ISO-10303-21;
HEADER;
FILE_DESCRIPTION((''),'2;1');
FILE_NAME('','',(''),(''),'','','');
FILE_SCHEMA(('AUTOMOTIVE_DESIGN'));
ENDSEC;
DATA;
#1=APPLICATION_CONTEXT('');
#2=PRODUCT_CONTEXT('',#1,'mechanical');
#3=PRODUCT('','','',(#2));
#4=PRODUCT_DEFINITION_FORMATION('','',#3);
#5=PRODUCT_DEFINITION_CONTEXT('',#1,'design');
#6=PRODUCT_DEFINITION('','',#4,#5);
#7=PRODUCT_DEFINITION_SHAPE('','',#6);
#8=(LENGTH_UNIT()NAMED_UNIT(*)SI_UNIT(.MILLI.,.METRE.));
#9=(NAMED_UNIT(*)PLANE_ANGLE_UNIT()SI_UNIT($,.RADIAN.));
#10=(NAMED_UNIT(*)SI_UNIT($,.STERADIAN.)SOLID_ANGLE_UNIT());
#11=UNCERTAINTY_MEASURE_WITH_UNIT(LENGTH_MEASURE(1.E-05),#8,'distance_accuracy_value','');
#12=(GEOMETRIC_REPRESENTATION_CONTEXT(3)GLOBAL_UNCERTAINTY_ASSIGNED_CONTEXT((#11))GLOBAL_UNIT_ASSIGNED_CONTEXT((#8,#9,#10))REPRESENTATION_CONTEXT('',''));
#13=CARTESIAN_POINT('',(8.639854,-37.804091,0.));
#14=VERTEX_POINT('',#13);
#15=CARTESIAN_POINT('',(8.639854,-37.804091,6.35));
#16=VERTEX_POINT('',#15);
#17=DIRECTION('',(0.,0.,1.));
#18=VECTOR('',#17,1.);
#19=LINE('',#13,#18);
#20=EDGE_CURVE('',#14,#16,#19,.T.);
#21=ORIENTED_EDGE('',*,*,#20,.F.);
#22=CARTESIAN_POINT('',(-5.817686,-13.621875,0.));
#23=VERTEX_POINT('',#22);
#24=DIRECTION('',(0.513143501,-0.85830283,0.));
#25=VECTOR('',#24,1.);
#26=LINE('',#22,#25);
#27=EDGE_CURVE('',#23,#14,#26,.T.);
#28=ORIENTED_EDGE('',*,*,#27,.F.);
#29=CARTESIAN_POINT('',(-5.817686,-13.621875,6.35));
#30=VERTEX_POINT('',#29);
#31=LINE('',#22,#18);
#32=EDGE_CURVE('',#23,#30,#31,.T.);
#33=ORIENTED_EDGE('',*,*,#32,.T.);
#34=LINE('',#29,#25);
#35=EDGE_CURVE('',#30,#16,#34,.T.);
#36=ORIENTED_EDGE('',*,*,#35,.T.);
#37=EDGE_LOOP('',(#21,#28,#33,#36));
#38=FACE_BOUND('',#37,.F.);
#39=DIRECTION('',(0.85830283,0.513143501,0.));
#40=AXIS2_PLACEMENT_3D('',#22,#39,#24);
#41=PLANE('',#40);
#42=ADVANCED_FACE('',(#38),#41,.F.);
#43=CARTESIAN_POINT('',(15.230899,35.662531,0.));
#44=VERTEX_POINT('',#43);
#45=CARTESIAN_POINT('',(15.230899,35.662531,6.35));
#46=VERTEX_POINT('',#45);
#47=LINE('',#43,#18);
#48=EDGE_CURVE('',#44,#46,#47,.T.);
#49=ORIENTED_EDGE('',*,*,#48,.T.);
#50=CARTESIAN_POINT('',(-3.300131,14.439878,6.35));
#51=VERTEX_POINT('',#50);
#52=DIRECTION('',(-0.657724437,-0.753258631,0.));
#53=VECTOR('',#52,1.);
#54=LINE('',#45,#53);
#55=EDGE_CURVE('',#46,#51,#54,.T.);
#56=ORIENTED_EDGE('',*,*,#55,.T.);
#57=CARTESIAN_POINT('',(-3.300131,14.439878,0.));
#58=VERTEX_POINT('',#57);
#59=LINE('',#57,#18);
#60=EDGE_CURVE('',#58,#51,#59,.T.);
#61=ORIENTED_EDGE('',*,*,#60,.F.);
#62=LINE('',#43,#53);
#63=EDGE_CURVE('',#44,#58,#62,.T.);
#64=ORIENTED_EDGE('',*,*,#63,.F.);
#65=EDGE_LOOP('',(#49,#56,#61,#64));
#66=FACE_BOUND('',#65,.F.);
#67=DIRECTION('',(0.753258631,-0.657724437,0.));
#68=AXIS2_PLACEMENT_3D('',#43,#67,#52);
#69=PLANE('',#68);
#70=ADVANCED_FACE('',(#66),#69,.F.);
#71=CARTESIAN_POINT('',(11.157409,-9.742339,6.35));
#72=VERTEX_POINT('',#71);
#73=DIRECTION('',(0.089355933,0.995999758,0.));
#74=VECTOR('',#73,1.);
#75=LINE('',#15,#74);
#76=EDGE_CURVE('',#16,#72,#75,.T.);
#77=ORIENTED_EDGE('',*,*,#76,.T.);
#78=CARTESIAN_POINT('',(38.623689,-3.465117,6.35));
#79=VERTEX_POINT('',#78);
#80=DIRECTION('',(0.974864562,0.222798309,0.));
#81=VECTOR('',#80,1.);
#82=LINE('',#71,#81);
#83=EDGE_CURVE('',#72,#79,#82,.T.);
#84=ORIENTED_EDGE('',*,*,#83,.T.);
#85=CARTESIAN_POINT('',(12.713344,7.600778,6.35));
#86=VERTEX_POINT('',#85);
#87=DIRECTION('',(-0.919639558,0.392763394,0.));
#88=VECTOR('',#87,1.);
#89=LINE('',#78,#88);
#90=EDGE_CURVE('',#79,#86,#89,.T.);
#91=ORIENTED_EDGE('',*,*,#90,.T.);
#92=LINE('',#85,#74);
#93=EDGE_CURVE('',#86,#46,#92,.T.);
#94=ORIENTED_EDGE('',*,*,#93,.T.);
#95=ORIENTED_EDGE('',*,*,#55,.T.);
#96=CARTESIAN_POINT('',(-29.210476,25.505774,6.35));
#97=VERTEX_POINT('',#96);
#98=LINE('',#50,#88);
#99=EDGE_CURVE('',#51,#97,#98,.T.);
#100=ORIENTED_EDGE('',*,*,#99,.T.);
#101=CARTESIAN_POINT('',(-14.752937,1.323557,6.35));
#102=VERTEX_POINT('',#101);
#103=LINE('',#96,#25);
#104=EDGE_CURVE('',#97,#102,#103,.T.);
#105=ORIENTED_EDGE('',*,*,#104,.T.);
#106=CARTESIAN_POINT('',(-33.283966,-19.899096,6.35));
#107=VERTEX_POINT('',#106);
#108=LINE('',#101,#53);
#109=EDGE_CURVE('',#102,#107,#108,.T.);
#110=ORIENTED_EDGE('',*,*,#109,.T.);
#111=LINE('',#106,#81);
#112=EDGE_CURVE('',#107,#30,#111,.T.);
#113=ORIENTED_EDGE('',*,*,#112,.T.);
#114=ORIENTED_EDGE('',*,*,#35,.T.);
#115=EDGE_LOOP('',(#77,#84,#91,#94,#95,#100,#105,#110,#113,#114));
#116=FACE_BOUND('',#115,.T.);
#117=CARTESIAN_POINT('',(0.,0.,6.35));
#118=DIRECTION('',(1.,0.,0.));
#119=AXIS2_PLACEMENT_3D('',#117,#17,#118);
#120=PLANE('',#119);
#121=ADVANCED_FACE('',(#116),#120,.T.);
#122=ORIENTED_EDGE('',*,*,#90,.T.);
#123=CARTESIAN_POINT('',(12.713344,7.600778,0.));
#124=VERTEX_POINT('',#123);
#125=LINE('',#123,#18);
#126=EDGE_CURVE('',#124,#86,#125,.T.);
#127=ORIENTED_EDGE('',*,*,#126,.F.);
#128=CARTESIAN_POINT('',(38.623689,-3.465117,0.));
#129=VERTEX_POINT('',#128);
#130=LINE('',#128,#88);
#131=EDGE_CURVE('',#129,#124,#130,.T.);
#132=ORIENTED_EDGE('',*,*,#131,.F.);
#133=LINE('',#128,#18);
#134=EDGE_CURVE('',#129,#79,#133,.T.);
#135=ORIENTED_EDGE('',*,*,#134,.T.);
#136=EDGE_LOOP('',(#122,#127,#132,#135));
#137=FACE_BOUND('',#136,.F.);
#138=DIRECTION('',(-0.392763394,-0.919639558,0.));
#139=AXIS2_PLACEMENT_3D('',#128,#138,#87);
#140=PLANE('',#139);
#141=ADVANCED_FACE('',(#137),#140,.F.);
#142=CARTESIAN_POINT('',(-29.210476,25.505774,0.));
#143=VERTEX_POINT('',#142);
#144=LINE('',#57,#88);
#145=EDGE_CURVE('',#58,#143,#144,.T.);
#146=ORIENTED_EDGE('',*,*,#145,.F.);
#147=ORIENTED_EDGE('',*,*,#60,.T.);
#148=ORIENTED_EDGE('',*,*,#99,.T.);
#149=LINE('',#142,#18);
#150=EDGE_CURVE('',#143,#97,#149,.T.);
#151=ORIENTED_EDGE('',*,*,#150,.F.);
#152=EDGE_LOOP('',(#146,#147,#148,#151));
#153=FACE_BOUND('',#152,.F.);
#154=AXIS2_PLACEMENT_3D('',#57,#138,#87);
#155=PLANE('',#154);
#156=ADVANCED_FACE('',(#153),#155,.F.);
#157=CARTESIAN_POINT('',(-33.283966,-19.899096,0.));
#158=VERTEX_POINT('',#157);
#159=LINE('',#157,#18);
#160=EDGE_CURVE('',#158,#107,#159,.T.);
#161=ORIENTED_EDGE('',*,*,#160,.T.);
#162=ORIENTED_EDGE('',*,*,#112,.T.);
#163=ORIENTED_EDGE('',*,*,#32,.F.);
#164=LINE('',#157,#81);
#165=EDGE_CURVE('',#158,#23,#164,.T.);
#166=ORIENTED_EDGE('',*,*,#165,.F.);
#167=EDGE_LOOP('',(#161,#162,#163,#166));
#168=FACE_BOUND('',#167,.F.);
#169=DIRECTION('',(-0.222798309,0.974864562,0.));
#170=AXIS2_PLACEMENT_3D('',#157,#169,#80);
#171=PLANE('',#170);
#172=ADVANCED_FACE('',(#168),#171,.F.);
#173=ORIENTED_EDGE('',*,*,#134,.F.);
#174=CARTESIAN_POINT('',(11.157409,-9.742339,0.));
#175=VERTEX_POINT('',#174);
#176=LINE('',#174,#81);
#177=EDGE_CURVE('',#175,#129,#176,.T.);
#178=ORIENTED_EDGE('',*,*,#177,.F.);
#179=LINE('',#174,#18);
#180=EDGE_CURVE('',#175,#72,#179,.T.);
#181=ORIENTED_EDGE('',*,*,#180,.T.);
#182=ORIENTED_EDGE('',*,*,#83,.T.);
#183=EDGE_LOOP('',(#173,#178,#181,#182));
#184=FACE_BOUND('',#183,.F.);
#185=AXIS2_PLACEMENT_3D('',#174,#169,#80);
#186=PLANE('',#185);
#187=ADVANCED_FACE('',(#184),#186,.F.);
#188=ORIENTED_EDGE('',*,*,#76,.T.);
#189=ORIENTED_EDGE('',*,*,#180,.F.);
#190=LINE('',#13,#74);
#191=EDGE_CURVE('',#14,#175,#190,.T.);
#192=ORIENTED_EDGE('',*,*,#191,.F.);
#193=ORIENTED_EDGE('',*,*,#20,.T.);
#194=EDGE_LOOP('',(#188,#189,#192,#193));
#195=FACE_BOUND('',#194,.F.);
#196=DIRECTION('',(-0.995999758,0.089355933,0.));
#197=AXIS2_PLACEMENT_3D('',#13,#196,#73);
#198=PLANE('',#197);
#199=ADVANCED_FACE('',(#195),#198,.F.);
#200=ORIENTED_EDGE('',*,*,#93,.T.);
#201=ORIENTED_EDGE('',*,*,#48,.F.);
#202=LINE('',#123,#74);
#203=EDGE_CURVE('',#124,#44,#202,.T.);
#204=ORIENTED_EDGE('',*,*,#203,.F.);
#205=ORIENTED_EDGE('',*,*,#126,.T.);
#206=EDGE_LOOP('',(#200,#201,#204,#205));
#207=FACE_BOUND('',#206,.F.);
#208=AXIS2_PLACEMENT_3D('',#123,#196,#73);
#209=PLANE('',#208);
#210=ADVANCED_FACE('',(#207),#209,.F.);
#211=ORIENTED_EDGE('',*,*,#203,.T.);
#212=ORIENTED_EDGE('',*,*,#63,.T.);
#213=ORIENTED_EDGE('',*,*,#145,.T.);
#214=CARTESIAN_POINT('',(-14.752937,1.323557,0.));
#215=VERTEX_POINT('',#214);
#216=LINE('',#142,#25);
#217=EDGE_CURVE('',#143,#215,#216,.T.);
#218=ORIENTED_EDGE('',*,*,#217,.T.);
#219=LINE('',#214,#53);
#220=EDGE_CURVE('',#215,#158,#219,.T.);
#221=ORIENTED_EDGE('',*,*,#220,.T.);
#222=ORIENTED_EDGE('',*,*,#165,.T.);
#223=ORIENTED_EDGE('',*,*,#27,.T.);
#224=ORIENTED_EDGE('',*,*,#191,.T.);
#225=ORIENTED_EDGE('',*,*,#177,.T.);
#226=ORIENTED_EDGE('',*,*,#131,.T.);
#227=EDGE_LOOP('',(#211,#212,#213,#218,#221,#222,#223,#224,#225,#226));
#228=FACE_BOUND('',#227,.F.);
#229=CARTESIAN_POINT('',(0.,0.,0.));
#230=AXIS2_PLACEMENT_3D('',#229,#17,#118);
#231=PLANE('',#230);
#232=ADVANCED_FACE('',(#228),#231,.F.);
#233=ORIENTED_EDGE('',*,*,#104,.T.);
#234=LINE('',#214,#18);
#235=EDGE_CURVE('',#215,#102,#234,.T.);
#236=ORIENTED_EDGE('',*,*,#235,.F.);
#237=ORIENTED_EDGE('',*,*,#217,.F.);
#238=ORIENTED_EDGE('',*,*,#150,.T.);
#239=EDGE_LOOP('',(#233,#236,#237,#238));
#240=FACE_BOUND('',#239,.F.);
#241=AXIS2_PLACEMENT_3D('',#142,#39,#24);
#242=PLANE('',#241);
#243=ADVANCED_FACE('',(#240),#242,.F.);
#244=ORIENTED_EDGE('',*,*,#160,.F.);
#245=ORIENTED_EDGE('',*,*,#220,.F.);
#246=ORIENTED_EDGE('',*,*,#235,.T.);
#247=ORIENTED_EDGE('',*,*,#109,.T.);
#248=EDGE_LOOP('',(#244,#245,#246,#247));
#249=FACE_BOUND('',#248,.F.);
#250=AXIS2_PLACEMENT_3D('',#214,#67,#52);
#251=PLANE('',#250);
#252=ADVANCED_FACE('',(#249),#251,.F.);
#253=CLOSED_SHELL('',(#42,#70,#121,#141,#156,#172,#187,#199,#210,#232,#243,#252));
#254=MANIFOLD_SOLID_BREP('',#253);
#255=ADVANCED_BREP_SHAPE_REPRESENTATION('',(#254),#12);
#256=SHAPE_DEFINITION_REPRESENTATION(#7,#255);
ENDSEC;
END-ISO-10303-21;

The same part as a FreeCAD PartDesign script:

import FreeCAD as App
import Part
import Sketcher
from FreeCAD import Vector
Q = App.Units.Quantity

doc = App.newDocument("Part")
params = doc.addObject("Spreadsheet::Sheet", "Params")
for row, (alias, value) in enumerate([
    ("pad1_length", "0.25 in"),
], start=1):
    params.set(f"A{row}", alias)
    params.set(f"B{row}", "=" + value)
    params.setAlias(f"B{row}", alias)

body = doc.addObject("PartDesign::Body", "Body")

# Sketch on XY plane
sketch1 = doc.addObject("Sketcher::SketchObject", "Sketch")
body.addObject(sketch1)
sketch1.AttachmentSupport = (doc.XY_Plane, [""])
sketch1.MapMode = "FlatFace"
sketch1.addGeometry([
    Part.LineSegment(Vector(-5.817686, -13.621875, 0), Vector(8.639854, -37.804091, 0)),  # 0
    Part.LineSegment(Vector(8.639854, -37.804091, 0), Vector(11.157409, -9.742339, 0)),  # 1
    Part.LineSegment(Vector(11.157409, -9.742339, 0), Vector(38.623689, -3.465117, 0)),  # 2
    Part.LineSegment(Vector(38.623689, -3.465117, 0), Vector(12.713344, 7.600778, 0)),  # 3
    Part.LineSegment(Vector(12.713344, 7.600778, 0), Vector(15.230899, 35.662531, 0)),  # 4
    Part.LineSegment(Vector(15.230899, 35.662531, 0), Vector(-3.300131, 14.439878, 0)),  # 5
    Part.LineSegment(Vector(-3.300131, 14.439878, 0), Vector(-29.210476, 25.505774, 0)),  # 6
    Part.LineSegment(Vector(-29.210476, 25.505774, 0), Vector(-14.752937, 1.323557, 0)),  # 7
    Part.LineSegment(Vector(-14.752937, 1.323557, 0), Vector(-33.283966, -19.899096, 0)),  # 8
    Part.LineSegment(Vector(-33.283966, -19.899096, 0), Vector(-5.817686, -13.621875, 0)),  # 9
], False)
sketch1.addConstraint([
    Sketcher.Constraint("Coincident", 0, 2, 1, 1),
    Sketcher.Constraint("Coincident", 1, 2, 2, 1),
    Sketcher.Constraint("Coincident", 2, 2, 3, 1),
    Sketcher.Constraint("Coincident", 3, 2, 4, 1),
    Sketcher.Constraint("Coincident", 4, 2, 5, 1),
    Sketcher.Constraint("Coincident", 5, 2, 6, 1),
    Sketcher.Constraint("Coincident", 6, 2, 7, 1),
    Sketcher.Constraint("Coincident", 7, 2, 8, 1),
    Sketcher.Constraint("Coincident", 8, 2, 9, 1),
    Sketcher.Constraint("Coincident", 9, 2, 0, 1),
    Sketcher.Constraint("DistanceY", 1, 2, 3, 2, Q("0.6827999 in")),
    Sketcher.Constraint("DistanceX", -1, 1, 4, 2, 15.230899),
    Sketcher.Constraint("DistanceY", 3, 2, 5, 2, 6.8391),
    Sketcher.Constraint("DistanceY", 0, 2, -1, 1, 37.804091),
    Sketcher.Constraint("DistanceX", -1, 1, 1, 2, 11.157409),
    Sketcher.Constraint("DistanceY", 1, 2, -1, 1, 9.742339),
    Sketcher.Constraint("DistanceX", -1, 1, 2, 2, 38.623689),
    Sketcher.Constraint("DistanceY", -1, 1, 4, 2, 35.662531),
    Sketcher.Constraint("DistanceX", 5, 2, -1, 1, 3.300131),
    Sketcher.Constraint("DistanceY", 1, 2, 2, 2, 6.277221),
    Sketcher.Constraint("DistanceX", 0, 2, 3, 2, 4.073489),
    Sketcher.Constraint("DistanceX", 6, 2, 3, 2, 41.92382),
    Sketcher.Constraint("DistanceY", 7, 2, 5, 2, 13.116321),
    Sketcher.Constraint("DistanceX", 6, 2, 7, 2, 14.45754),
    Sketcher.Constraint("DistanceX", 8, 2, 7, 2, 18.531029),
    Sketcher.Constraint("DistanceY", 8, 2, 6, 2, 45.40487),
    Sketcher.Constraint("DistanceX", 7, 2, 9, 2, 8.935251),
    Sketcher.Constraint("DistanceY", 9, 2, 7, 2, 14.945432),
    Sketcher.Constraint("DistanceY", 8, 2, 9, 2, 6.277221),
    Sketcher.Constraint("Distance", 1, 28.174458),
])
pad1 = doc.addObject("PartDesign::Pad", "Pad")
body.addObject(pad1)
pad1.Profile = sketch1
pad1.setExpression("Length", "Params.pad1_length")

doc.recompute()
